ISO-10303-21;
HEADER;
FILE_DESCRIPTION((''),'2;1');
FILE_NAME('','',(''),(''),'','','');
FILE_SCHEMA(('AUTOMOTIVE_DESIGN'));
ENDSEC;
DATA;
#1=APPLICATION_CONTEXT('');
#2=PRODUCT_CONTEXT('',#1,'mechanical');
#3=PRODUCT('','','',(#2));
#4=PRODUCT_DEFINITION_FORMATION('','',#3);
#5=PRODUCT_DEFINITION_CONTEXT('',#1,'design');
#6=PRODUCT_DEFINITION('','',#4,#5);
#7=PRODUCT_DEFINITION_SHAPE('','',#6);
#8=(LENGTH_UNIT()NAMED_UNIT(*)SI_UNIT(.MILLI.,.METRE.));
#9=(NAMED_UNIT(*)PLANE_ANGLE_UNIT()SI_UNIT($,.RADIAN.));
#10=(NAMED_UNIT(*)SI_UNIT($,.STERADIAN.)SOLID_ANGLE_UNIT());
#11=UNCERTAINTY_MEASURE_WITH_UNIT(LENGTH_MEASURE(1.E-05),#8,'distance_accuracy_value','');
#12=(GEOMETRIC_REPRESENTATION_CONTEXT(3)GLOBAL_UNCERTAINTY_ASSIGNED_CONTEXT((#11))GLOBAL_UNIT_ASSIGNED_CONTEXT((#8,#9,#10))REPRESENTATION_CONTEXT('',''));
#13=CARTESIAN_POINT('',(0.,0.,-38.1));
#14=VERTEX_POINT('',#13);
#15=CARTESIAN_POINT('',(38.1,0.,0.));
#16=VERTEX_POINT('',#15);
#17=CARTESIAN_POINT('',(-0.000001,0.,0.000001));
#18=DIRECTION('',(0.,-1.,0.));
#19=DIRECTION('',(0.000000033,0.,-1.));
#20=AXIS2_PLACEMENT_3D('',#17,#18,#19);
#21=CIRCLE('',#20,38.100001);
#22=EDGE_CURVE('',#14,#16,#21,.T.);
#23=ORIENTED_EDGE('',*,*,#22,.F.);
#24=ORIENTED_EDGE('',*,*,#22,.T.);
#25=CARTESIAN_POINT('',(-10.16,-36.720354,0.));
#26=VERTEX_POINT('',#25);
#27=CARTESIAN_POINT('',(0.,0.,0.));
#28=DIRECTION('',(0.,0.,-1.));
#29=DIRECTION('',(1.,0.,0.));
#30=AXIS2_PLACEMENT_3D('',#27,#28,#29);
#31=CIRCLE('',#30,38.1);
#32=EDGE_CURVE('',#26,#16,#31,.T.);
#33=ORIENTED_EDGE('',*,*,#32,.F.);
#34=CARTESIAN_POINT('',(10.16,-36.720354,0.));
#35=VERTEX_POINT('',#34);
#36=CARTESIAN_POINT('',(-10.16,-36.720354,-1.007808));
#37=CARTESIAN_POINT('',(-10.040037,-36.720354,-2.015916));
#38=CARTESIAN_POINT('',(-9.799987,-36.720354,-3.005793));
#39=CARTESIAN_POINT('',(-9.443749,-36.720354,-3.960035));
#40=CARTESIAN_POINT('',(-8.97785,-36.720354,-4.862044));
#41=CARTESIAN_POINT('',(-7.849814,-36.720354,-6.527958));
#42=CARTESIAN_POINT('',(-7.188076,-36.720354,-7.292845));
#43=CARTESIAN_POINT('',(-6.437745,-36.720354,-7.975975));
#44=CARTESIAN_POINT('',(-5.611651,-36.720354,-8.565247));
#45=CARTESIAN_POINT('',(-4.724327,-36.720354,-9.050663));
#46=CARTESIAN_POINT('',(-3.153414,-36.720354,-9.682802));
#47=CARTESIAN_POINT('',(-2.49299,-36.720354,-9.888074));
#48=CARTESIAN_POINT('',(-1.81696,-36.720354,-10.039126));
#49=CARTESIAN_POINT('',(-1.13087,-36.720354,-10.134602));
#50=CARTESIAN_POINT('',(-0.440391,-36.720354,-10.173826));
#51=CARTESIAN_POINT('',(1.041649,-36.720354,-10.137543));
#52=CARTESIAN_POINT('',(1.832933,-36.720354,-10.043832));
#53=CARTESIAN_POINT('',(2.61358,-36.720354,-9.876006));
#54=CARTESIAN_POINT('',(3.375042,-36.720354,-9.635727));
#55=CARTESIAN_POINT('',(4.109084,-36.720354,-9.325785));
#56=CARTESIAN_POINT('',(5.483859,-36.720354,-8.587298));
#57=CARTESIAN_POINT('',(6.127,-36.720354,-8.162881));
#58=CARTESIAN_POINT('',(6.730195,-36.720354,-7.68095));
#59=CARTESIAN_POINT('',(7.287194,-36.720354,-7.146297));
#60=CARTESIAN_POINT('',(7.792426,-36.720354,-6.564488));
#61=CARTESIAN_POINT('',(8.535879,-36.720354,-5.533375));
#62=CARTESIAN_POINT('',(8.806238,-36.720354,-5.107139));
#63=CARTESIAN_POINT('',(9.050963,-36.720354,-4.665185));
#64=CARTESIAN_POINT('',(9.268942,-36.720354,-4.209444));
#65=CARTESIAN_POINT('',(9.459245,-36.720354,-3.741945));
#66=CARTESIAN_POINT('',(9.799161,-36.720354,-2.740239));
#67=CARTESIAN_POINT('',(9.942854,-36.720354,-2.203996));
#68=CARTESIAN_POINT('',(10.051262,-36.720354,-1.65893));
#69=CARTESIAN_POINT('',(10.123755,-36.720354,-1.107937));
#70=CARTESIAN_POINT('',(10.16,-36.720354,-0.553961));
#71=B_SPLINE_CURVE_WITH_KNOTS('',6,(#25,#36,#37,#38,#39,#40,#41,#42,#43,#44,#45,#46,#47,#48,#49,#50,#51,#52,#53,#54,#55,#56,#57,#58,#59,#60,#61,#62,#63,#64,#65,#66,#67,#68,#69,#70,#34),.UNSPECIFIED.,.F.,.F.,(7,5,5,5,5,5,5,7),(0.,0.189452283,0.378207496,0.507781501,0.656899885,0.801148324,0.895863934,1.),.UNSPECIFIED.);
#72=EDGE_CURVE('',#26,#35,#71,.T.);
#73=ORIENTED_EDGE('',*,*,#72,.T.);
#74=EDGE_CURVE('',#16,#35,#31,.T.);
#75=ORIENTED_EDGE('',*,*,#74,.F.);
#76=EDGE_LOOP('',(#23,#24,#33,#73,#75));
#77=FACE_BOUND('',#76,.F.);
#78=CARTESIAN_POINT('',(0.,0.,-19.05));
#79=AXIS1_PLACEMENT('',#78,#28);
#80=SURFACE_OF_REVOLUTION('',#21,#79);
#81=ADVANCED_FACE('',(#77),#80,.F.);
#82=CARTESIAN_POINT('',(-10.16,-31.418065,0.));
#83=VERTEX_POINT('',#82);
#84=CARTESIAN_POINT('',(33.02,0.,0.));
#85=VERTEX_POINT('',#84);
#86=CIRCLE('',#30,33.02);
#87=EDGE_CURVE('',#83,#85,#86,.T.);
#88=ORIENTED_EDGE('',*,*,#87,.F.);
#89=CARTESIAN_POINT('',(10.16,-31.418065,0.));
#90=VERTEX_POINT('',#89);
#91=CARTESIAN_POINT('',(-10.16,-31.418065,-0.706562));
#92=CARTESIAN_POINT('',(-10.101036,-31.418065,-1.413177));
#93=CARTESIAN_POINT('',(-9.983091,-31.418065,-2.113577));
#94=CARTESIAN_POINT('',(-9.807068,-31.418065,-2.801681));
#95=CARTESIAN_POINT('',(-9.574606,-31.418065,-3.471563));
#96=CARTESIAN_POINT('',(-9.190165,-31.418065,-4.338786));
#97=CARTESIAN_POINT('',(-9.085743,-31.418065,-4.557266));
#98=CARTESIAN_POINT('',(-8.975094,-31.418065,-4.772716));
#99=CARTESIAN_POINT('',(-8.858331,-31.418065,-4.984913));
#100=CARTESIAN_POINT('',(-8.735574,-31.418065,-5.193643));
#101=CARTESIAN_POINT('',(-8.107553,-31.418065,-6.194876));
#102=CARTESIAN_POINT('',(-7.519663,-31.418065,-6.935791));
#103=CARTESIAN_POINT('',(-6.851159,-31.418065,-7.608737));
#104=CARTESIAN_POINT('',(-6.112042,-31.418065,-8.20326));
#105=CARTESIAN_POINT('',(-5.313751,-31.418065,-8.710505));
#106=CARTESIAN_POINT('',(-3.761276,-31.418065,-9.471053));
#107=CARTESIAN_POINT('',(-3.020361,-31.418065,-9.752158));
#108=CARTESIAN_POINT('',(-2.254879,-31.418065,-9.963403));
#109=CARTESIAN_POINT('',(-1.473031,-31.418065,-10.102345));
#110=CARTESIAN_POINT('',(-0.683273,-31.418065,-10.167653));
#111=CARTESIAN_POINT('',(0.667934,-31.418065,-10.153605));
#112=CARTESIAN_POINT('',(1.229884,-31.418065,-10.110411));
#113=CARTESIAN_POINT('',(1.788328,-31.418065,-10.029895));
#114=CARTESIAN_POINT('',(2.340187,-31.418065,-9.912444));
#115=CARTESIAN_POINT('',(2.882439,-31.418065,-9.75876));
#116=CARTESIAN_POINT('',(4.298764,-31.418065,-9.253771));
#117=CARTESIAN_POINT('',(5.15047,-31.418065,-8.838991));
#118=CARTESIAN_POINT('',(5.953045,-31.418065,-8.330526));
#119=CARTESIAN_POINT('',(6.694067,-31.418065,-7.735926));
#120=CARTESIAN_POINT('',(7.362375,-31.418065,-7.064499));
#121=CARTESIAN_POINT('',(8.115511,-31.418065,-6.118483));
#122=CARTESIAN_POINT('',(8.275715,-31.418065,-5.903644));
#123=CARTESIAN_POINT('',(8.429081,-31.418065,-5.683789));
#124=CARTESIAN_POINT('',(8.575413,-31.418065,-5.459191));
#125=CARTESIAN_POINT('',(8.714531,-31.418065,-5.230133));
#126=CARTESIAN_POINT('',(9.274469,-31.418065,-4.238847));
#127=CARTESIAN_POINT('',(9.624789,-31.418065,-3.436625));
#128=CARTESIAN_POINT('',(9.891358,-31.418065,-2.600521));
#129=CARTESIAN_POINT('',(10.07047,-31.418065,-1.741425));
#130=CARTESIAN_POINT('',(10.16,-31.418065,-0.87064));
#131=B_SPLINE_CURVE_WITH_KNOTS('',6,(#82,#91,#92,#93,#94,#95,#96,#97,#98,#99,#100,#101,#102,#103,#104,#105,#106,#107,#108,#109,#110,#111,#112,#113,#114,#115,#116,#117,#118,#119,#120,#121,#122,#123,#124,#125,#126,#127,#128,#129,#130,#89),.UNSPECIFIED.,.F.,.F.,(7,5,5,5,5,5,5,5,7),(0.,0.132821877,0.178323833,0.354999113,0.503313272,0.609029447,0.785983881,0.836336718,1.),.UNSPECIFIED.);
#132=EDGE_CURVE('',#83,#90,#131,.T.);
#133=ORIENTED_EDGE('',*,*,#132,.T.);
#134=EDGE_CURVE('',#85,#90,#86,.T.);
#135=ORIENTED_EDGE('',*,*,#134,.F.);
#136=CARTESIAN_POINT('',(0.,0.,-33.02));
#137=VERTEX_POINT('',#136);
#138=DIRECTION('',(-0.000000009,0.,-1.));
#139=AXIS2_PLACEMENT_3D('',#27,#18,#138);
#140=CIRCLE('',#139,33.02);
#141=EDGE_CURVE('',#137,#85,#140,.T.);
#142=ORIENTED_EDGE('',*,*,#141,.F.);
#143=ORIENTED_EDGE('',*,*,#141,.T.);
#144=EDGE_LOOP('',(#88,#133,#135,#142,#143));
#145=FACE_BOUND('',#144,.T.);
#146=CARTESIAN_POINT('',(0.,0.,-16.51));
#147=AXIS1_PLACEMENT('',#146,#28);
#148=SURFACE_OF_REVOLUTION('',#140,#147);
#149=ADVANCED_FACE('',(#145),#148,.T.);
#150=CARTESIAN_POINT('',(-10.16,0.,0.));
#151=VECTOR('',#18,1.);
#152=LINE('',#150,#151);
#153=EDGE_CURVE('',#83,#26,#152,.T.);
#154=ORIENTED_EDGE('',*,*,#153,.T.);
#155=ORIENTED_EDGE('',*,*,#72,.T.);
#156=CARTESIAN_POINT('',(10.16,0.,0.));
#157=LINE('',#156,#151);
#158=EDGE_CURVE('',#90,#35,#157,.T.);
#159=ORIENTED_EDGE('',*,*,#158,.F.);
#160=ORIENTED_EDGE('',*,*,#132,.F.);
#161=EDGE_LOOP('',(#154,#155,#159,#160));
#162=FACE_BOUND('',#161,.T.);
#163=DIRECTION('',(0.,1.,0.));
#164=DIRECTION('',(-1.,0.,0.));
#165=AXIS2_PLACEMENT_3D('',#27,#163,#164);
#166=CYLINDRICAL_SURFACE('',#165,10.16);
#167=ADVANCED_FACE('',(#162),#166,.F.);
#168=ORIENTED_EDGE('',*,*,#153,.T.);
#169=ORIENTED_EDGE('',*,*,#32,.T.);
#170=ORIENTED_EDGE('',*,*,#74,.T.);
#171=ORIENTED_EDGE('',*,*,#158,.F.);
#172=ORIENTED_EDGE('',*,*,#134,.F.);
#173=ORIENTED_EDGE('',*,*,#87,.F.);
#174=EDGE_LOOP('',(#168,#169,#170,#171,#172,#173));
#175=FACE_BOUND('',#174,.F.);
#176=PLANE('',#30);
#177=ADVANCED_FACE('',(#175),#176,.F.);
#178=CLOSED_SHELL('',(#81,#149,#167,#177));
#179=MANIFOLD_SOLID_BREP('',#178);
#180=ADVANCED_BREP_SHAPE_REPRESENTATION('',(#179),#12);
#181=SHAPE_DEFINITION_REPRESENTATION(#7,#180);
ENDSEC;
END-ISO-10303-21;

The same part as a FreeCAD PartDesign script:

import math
import FreeCAD as App
import Part
import Sketcher
Q = App.Units.Quantity

doc = App.newDocument("Part")
body = doc.addObject("PartDesign::Body", "Body")

# Sketch on XZ plane
sketch1 = body.newObject("Sketcher::SketchObject", "Sketch")
sketch1.AttachmentSupport = (doc.getObject("XZ_Plane"), [""])
sketch1.MapMode = "FlatFace"
sketch1.addGeometry([
    Part.LineSegment(App.Vector(38, 0, 0), App.Vector(0, 0, 0)),
    Part.LineSegment(App.Vector(0, 0, 0), App.Vector(0, -38, 0)),
    Part.ArcOfCircle(Part.Circle(App.Vector(0, 0, 0), App.Vector(0, 0, 1), 38), math.radians(-90), math.radians(0)),
], False)
sketch1.addConstraint([
    Sketcher.Constraint("Coincident", 0, 2, 1, 1),
    Sketcher.Constraint("Coincident", 1, 2, 2, 1),
    Sketcher.Constraint("Coincident", 2, 2, 0, 1),
    Sketcher.Constraint("Horizontal", 0),
    Sketcher.Constraint("Vertical", 1),
    Sketcher.Constraint("Coincident", 2, 3, -1, 1),
    Sketcher.Constraint("Coincident", 0, 2, -1, 1),
    Sketcher.Constraint("Radius", 2, Q("1.5 in")),
])
revolution = body.newObject("PartDesign::Revolution", "Revolution")
revolution.Profile = sketch1
revolution.ReferenceAxis = (sketch1, ["V_Axis"])
revolution.Angle = 360

# Sketch on XZ plane
sketch2 = body.newObject("Sketcher::SketchObject", "Sketch001")
sketch2.AttachmentSupport = (doc.getObject("XZ_Plane"), [""])
sketch2.MapMode = "FlatFace"
sketch2.addGeometry([
    Part.LineSegment(App.Vector(33, 0, 0), App.Vector(0, 0, 0)),
    Part.LineSegment(App.Vector(0, 0, 0), App.Vector(0, -33, 0)),
    Part.ArcOfCircle(Part.Circle(App.Vector(0, 0, 0), App.Vector(0, 0, 1), 33), math.radians(-90), math.radians(0)),
], False)
sketch2.addConstraint([
    Sketcher.Constraint("Coincident", 0, 2, 1, 1),
    Sketcher.Constraint("Coincident", 1, 2, 2, 1),
    Sketcher.Constraint("Coincident", 2, 2, 0, 1),
    Sketcher.Constraint("Horizontal", 0),
    Sketcher.Constraint("Vertical", 1),
    Sketcher.Constraint("Coincident", 2, 3, -1, 1),
    Sketcher.Constraint("Coincident", 0, 2, -1, 1),
    Sketcher.Constraint("Radius", 2, Q("1.3 in")),
])
groove = body.newObject("PartDesign::Groove", "Groove")
groove.Profile = sketch2
groove.ReferenceAxis = (sketch2, ["V_Axis"])
groove.Angle = 360

# Sketch on XZ plane
sketch3 = body.newObject("Sketcher::SketchObject", "Sketch002")
sketch3.AttachmentSupport = (doc.getObject("XZ_Plane"), [""])
sketch3.MapMode = "FlatFace"
sketch3.addGeometry([
    Part.LineSegment(App.Vector(10, 0, 0), App.Vector(-10, 0, 0)),
    Part.ArcOfCircle(Part.Circle(App.Vector(0, 0, 0), App.Vector(0, 0, 1), 10), math.radians(180), math.radians(360)),
], False)
sketch3.addConstraint([
    Sketcher.Constraint("Coincident", 0, 1, 1, 2),
    Sketcher.Constraint("Coincident", 1, 1, 0, 2),
    Sketcher.Constraint("Horizontal", 0),
    Sketcher.Constraint("Coincident", 1, 3, -1, 1),
    Sketcher.Constraint("PointOnObject", 0, 1, -1),
    Sketcher.Constraint("Radius", 1, Q("0.4 in")),
])
pocket1 = body.newObject("PartDesign::Pocket", "Pocket")
pocket1.Profile = sketch3
pocket1.Length = Q("1.5 in")
pocket1.Reversed = True

doc.recompute()
